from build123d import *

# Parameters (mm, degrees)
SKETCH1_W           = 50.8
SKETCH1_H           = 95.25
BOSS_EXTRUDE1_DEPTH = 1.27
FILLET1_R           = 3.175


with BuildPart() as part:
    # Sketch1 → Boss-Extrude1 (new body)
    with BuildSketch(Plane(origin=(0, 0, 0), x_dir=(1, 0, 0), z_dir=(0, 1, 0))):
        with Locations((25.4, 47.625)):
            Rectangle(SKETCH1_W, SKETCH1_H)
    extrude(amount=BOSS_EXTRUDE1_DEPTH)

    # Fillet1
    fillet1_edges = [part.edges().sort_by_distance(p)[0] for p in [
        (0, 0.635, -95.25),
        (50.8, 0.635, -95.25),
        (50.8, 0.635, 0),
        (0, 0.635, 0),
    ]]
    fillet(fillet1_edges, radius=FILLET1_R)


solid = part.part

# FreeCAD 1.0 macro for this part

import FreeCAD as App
import Part
import Sketcher
from FreeCAD import Vector
Q = App.Units.Quantity


def edges_at(feature, points):
    """Names of the edges that pass closest to the given points."""
    edges = feature.Shape.Edges
    near = lambda p: min(range(len(edges)), key=lambda i: edges[i].distToShape(Part.Vertex(*p))[0])
    return sorted({f"Edge{near(p) + 1}" for p in points})


def add_polygon(sketch, points):
    """Adds a closed chain of lines whose ends are joined by coincident constraints."""
    first, n = sketch.GeometryCount, len(points)
    for a, b in zip(points, points[1:] + points[:1]):
        sketch.addGeometry(Part.LineSegment(App.Vector(*a, 0), App.Vector(*b, 0)), False)
    for i in range(n):
        sketch.addConstraint(Sketcher.Constraint("Coincident", first + i, 2, first + (i + 1) % n, 1))

doc = App.newDocument("Part")
body = doc.addObject("PartDesign::Body", "Body")

# Sketch on XZ plane
sketch1 = doc.addObject("Sketcher::SketchObject", "Sketch")
body.addObject(sketch1)
sketch1.AttachmentSupport = (doc.XZ_Plane, [""])
sketch1.MapMode = "FlatFace"
add_polygon(sketch1, [(0, -95), (0, 0), (51, 0), (51, -95)])  # lines 0-3
sketch1.addConstraint([
    Sketcher.Constraint("Vertical", 0),
    Sketcher.Constraint("Horizontal", 1),
    Sketcher.Constraint("Vertical", 2),
    Sketcher.Constraint("Horizontal", 3),
    Sketcher.Constraint("Coincident", 0, 2, -1, 1),
    Sketcher.Constraint("DistanceX", 1, 1, 1, 2, Q("2 in")),
    Sketcher.Constraint("DistanceY", 0, 1, 0, 2, Q("3.75 in")),
])
pad1 = doc.addObject("PartDesign::Pad", "Pad")
body.addObject(pad1)
pad1.Profile = sketch1
pad1.Length = Q("0.05 in")
pad1.Reversed = True
doc.recompute()

fillet = doc.addObject("PartDesign::Fillet", "Fillet")
body.addObject(fillet)
fillet.Base = (pad1, edges_at(pad1, [
    (0, 0.635, -95.25),
    (50.8, 0.635, -95.25),
    (50.8, 0.635, 0),
    (0, 0.635, 0),
]))
fillet.Radius = Q("0.125 in")

doc.recompute()
